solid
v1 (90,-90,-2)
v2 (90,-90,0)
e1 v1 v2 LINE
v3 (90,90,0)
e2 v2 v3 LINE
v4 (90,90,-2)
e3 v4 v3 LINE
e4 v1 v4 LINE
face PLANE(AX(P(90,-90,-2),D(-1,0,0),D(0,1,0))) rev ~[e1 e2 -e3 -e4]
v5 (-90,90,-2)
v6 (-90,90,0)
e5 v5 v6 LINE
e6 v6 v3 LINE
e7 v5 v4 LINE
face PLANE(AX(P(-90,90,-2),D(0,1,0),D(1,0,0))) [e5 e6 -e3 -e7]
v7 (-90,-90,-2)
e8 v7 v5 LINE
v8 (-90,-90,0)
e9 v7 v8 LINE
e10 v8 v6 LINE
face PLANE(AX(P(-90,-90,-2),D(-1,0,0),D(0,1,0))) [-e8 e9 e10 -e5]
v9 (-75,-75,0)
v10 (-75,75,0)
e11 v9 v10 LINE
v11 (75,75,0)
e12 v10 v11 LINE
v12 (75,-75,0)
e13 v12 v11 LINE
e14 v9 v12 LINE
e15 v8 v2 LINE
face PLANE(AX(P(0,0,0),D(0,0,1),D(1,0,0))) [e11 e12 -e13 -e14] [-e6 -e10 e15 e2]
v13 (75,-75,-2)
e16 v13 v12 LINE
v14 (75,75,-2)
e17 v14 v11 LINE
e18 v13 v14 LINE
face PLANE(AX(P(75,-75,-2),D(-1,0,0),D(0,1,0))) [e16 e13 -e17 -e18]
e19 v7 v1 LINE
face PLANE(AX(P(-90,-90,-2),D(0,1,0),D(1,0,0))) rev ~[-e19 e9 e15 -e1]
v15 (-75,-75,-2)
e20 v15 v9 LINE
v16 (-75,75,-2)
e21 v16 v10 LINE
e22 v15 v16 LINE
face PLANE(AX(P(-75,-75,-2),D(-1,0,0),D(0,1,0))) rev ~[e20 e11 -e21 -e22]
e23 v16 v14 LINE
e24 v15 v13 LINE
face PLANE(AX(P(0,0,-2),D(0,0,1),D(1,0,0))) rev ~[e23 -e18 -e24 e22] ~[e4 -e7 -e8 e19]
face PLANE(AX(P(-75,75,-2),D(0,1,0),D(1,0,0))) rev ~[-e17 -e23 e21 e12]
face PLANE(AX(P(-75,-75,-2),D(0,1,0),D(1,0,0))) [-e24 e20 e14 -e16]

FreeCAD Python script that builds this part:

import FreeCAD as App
import Part
import Sketcher
from FreeCAD import Vector
Q = App.Units.Quantity

doc = App.newDocument("Part")
body = doc.addObject("PartDesign::Body", "Body")

sketch1 = body.newObject("Sketcher::SketchObject", "Sketch")
sketch1.AttachmentSupport = (doc.getObject("XY_Plane"), [""])
sketch1.MapMode = "FlatFace"
sketch1.AttachmentOffset = App.Placement(Vector(0, 0, -2), App.Rotation())
sketch1.addGeometry(Part.LineSegment(Vector(-90, 90, 0), Vector(-90, -90, 0)), False)
sketch1.addGeometry(Part.LineSegment(Vector(-90, -90, 0), Vector(90, -90, 0)), False)
sketch1.addGeometry(Part.LineSegment(Vector(90, -90, 0), Vector(90, 90, 0)), False)
sketch1.addGeometry(Part.LineSegment(Vector(90, 90, 0), Vector(-90, 90, 0)), False)
sketch1.addGeometry(Part.LineSegment(Vector(75, -75, 0), Vector(-75, -75, 0)), False)
sketch1.addGeometry(Part.LineSegment(Vector(-75, -75, 0), Vector(-75, 75, 0)), False)
sketch1.addGeometry(Part.LineSegment(Vector(-75, 75, 0), Vector(75, 75, 0)), False)
sketch1.addGeometry(Part.LineSegment(Vector(75, 75, 0), Vector(75, -75, 0)), False)
sketch1.addConstraint(Sketcher.Constraint("Coincident", 0, 2, 1, 1))
sketch1.addConstraint(Sketcher.Constraint("Coincident", 1, 2, 2, 1))
sketch1.addConstraint(Sketcher.Constraint("Coincident", 2, 2, 3, 1))
sketch1.addConstraint(Sketcher.Constraint("Coincident", 3, 2, 0, 1))
sketch1.addConstraint(Sketcher.Constraint("Coincident", 4, 2, 5, 1))
sketch1.addConstraint(Sketcher.Constraint("Coincident", 5, 2, 6, 1))
sketch1.addConstraint(Sketcher.Constraint("Coincident", 6, 2, 7, 1))
sketch1.addConstraint(Sketcher.Constraint("Coincident", 7, 2, 4, 1))
sketch1.addConstraint(Sketcher.Constraint("Vertical", 0))
sketch1.addConstraint(Sketcher.Constraint("Horizontal", 1))
sketch1.addConstraint(Sketcher.Constraint("Vertical", 2))
sketch1.addConstraint(Sketcher.Constraint("Horizontal", 3))
sketch1.addConstraint(Sketcher.Constraint("Horizontal", 4))
sketch1.addConstraint(Sketcher.Constraint("Vertical", 5))
sketch1.addConstraint(Sketcher.Constraint("Horizontal", 6))
sketch1.addConstraint(Sketcher.Constraint("Vertical", 7))
sketch1.addConstraint(Sketcher.Constraint("Symmetric", 0, 2, 2, 2, -1, 1))
sketch1.addConstraint(Sketcher.Constraint("Symmetric", 4, 2, 6, 2, -1, 1))
sketch1.addConstraint(Sketcher.Constraint("Equal", 3, 0))
sketch1.addConstraint(Sketcher.Constraint("Equal", 6, 5))
sketch1.addConstraint(Sketcher.Constraint("DistanceX", 1, 1, 1, 2, Q("180 mm")))
sketch1.addConstraint(Sketcher.Constraint("DistanceX", 4, 2, 4, 1, Q("150 mm")))
pad1 = body.newObject("PartDesign::Pad", "Pad")
pad1.Profile = sketch1
pad1.Length = 2

doc.recompute()
